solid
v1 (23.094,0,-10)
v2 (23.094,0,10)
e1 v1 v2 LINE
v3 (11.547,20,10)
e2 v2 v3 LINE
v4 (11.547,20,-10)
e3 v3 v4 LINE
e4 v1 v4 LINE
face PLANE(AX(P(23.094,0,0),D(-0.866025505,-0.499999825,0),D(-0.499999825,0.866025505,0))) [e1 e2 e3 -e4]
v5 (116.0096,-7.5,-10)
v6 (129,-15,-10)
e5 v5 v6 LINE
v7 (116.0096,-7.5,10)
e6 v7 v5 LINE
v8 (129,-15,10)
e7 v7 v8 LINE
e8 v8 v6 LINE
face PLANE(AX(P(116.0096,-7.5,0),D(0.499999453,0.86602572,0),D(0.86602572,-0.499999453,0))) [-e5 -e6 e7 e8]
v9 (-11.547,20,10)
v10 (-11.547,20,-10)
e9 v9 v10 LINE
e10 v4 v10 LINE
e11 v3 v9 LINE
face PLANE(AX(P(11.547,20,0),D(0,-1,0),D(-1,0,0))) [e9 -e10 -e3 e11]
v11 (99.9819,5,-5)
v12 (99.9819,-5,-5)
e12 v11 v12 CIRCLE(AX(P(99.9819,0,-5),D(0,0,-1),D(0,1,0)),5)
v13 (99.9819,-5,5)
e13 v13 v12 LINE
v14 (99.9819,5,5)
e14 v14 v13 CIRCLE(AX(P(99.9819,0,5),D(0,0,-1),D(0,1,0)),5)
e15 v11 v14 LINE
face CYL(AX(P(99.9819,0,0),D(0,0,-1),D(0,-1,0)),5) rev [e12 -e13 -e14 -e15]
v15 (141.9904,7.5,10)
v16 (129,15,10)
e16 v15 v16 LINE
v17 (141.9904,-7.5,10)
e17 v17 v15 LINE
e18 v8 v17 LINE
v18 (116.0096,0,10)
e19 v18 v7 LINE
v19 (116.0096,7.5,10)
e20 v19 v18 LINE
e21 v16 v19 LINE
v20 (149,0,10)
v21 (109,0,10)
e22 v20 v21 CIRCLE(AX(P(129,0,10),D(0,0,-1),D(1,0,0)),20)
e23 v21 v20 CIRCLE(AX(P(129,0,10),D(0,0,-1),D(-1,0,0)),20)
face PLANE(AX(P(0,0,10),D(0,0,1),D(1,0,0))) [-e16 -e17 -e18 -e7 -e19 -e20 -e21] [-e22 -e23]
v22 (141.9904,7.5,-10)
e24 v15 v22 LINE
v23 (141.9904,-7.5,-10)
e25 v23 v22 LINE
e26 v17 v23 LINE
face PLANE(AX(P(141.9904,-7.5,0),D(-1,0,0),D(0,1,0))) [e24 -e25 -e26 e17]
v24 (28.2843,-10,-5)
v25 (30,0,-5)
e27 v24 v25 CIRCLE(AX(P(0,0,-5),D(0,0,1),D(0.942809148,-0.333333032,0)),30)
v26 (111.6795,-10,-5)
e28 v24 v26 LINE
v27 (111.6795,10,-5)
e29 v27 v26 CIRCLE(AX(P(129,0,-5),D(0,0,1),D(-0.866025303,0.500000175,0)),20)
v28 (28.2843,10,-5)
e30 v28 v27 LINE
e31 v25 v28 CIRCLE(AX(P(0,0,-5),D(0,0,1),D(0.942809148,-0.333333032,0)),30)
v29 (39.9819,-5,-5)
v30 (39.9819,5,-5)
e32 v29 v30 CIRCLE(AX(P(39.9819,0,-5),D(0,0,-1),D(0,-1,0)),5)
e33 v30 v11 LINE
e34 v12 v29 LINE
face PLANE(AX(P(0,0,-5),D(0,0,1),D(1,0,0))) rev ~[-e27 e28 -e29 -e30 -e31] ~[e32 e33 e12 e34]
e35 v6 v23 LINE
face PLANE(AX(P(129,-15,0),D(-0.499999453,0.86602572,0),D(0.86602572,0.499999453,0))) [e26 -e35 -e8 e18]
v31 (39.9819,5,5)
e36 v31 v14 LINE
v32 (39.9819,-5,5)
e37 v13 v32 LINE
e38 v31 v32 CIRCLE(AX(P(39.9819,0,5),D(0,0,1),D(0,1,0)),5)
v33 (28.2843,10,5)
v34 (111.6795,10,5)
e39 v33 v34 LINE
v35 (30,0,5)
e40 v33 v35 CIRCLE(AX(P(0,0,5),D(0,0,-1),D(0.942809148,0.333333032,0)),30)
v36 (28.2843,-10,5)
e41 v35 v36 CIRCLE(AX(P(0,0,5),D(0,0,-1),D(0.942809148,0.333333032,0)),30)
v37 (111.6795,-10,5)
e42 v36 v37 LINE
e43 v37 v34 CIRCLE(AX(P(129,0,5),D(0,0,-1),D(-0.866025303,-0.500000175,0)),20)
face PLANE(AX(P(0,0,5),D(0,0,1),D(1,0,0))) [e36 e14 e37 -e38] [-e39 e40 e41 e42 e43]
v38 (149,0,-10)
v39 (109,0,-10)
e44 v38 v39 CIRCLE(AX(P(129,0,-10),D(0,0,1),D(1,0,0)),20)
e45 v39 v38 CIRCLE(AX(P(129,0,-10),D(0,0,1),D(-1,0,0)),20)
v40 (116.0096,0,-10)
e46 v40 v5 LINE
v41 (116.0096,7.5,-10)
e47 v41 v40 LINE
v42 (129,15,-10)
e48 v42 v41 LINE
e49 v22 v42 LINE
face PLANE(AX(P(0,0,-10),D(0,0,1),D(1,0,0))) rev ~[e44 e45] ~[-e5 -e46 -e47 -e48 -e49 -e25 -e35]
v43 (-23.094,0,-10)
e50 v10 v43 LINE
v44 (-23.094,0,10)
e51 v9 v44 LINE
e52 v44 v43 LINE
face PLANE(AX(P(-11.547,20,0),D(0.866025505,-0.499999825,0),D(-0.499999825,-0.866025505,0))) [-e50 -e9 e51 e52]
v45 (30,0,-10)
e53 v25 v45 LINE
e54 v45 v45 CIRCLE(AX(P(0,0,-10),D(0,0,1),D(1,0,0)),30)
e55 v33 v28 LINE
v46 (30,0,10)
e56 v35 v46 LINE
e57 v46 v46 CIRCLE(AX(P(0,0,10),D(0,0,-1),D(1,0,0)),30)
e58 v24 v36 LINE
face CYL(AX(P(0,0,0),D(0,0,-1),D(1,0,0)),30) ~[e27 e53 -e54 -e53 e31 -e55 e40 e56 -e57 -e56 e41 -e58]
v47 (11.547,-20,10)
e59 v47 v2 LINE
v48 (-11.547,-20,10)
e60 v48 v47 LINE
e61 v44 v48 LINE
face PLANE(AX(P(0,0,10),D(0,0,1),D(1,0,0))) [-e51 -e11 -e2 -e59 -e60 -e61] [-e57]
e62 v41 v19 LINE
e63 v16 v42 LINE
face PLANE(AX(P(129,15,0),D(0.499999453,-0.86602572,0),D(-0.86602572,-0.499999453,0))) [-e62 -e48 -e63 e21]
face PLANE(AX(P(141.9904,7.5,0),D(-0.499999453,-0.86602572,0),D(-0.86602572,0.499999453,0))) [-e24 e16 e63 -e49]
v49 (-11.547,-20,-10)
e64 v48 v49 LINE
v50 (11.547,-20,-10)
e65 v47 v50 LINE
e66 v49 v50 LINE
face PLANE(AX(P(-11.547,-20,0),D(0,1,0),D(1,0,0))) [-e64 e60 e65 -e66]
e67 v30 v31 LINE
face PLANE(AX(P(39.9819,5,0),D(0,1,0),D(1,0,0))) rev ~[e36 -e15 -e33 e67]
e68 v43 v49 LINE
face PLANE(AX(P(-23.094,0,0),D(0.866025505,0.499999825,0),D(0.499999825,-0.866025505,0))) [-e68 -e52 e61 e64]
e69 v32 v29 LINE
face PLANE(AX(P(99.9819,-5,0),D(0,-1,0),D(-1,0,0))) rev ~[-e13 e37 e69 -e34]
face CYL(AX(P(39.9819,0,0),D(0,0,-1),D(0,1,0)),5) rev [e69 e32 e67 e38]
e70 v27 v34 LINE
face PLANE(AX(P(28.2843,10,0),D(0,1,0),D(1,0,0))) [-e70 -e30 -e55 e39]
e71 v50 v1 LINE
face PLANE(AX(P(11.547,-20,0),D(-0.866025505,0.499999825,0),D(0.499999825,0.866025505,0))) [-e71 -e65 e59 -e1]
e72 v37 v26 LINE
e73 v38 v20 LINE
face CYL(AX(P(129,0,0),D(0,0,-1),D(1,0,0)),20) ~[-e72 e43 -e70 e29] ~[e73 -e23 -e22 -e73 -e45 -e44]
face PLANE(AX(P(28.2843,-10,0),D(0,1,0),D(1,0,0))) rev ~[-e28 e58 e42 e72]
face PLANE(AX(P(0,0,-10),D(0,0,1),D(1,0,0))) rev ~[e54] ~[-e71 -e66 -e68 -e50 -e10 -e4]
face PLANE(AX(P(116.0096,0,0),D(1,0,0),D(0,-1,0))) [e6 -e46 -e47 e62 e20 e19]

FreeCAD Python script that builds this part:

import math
import FreeCAD as App
import Part
import Sketcher
Q = App.Units.Quantity


def add_polygon(sketch, points):
    """Adds a closed chain of lines whose ends are joined by coincident constraints."""
    first, n = sketch.GeometryCount, len(points)
    for a, b in zip(points, points[1:] + points[:1]):
        sketch.addGeometry(Part.LineSegment(App.Vector(*a, 0), App.Vector(*b, 0)), False)
    for i in range(n):
        sketch.addConstraint(Sketcher.Constraint("Coincident", first + i, 2, first + (i + 1) % n, 1))

doc = App.newDocument("Part")
body = doc.addObject("PartDesign::Body", "Body")
body.AllowCompound = True

# Sketch on XY plane
sketch1 = body.newObject("Sketcher::SketchObject", "Sketch")
sketch1.AttachmentSupport = (doc.getObject("XY_Plane"), [""])
sketch1.MapMode = "FlatFace"
sketch1.addGeometry(Part.Circle(App.Vector(0, 0, 0), App.Vector(0, 0, 1), 30), False)  # 0
add_polygon(sketch1, [(11.547, 20), (23.094, 0), (11.547, -20), (-11.547, -20), (-23.094, 0), (-11.547, 20)])  # lines 1-6
sketch1.addGeometry(Part.Circle(App.Vector(129, 0, 0), App.Vector(0, 0, 1), 20), False)  # 7
add_polygon(sketch1, [(116.0096, -7.5), (116.0096, 0), (116.0096, 7.5), (129, 15), (141.9904, 7.5), (141.9904, -7.5), (129, -15)])  # lines 8-14
sketch1.addConstraint([
    Sketcher.Constraint("Horizontal", 3),
    Sketcher.Constraint("Horizontal", 6),
    Sketcher.Constraint("Vertical", 8),
    Sketcher.Constraint("Vertical", 9),
    Sketcher.Constraint("Vertical", 12),
    Sketcher.Constraint("Coincident", 0, 3, -1, 1),
    Sketcher.Constraint("Symmetric", 1, 2, 4, 2, -1, 1),
    Sketcher.Constraint("Symmetric", 2, 2, 5, 2, -1, 1),
    Sketcher.Constraint("Symmetric", 10, 2, 13, 2, -1),
    Sketcher.Constraint("PointOnObject", 7, 3, -1),
    Sketcher.Constraint("PointOnObject", 1, 2, -1),
    Sketcher.Constraint("PointOnObject", 8, 2, -1),
    Sketcher.Constraint("Parallel", 1, 4),
    Sketcher.Constraint("Perpendicular", 4, 10),
    Sketcher.Constraint("Perpendicular", 5, 11),
    Sketcher.Constraint("Parallel", 10, 13),
    Sketcher.Constraint("Parallel", 11, 14),
    Sketcher.Constraint("Horizontal", 9, 2, 11, 2),
    Sketcher.Constraint("Horizontal", 12, 2, 14, 2),
    Sketcher.Constraint("Vertical", 7, 3, 10, 2),
    Sketcher.Constraint("Diameter", 0, Q("60 mm")),
    Sketcher.Constraint("Diameter", 7, Q("40 mm")),
    Sketcher.Constraint("DistanceY", 12, 2, 12, 1, Q("15 mm")),
    Sketcher.Constraint("Angle", 1, Q("-60 deg")),
    Sketcher.Constraint("Distance", 10, Q("15 mm")),
    Sketcher.Constraint("DistanceX", -1, 1, 7, 3, Q("129 mm")),
    Sketcher.Constraint("DistanceY", 2, 2, -1, 1, Q("20 mm")),
    Sketcher.Constraint("DistanceX", 3, 2, 3, 1, Q("23.094 mm")),
])
pad1 = body.newObject("PartDesign::Pad", "Pad")
pad1.Profile = sketch1
pad1.Length = 20
pad1.Midplane = True

# Sketch on XY plane
sketch2 = body.newObject("Sketcher::SketchObject", "Sketch001")
sketch2.AttachmentSupport = (doc.getObject("XY_Plane"), [""])
sketch2.MapMode = "FlatFace"
sketch2.addGeometry([
    Part.ArcOfCircle(Part.Circle(App.Vector(129, 0, 0), App.Vector(0, 0, 1), 20), math.radians(149.999988), math.radians(210.000012)),  # 0
    Part.LineSegment(App.Vector(111.6795, 10, 0), App.Vector(28.2843, 10, 0)),  # 1
    Part.ArcOfCircle(Part.Circle(App.Vector(0, 0, 0), App.Vector(0, 0, 1), 30), math.radians(-19.471202), math.radians(19.471202)),  # 2
    Part.LineSegment(App.Vector(28.2843, -10, 0), App.Vector(111.6795, -10, 0)),  # 3
    Part.ArcOfCircle(Part.Circle(App.Vector(39.9819, 0, 0), App.Vector(0, 0, 1), 5), math.radians(90), math.radians(270)),  # 4
    Part.LineSegment(App.Vector(39.9819, 5, 0), App.Vector(99.9819, 5, 0)),  # 5
    Part.ArcOfCircle(Part.Circle(App.Vector(99.9819, 0, 0), App.Vector(0, 0, 1), 5), math.radians(-90), math.radians(90)),  # 6
    Part.LineSegment(App.Vector(99.9819, -5, 0), App.Vector(39.9819, -5, 0)),  # 7
], False)
sketch2.addConstraint([
    Sketcher.Constraint("Coincident", 0, 1, 1, 1),
    Sketcher.Constraint("Coincident", 1, 2, 2, 2),
    Sketcher.Constraint("Coincident", 2, 1, 3, 1),
    Sketcher.Constraint("Coincident", 3, 2, 0, 2),
    Sketcher.Constraint("Tangent", 4, 1, 5, 1),
    Sketcher.Constraint("Tangent", 5, 2, 6, 2),
    Sketcher.Constraint("Tangent", 6, 1, 7, 1),
    Sketcher.Constraint("Tangent", 7, 2, 4, 2),
    Sketcher.Constraint("Horizontal", 1),
    Sketcher.Constraint("Horizontal", 3),
    Sketcher.Constraint("Horizontal", 5),
    Sketcher.Constraint("Horizontal", 7),
    Sketcher.Constraint("Coincident", 2, 3, -1, 1),
    Sketcher.Constraint("Symmetric", 0, 1, 3, 2, -1),
    Sketcher.Constraint("PointOnObject", 4, 3, -1),
    Sketcher.Constraint("Radius", 0, Q("20 mm")),
    Sketcher.Constraint("Radius", 2, Q("30 mm")),
    Sketcher.Constraint("Radius", 4, Q("5 mm")),
    Sketcher.Constraint("DistanceX", 5, 1, 5, 2, Q("60 mm")),
    Sketcher.Constraint("DistanceX", -1, 1, 0, 3, Q("129 mm")),
    Sketcher.Constraint("DistanceY", -1, 1, 0, 1, Q("10 mm")),
    Sketcher.Constraint("DistanceX", -1, 1, 4, 3, Q("39.982 mm")),
])
pad2 = body.newObject("PartDesign::Pad", "Pad001")
pad2.Profile = sketch2
pad2.Length = 10
pad2.Midplane = True

doc.recompute()
